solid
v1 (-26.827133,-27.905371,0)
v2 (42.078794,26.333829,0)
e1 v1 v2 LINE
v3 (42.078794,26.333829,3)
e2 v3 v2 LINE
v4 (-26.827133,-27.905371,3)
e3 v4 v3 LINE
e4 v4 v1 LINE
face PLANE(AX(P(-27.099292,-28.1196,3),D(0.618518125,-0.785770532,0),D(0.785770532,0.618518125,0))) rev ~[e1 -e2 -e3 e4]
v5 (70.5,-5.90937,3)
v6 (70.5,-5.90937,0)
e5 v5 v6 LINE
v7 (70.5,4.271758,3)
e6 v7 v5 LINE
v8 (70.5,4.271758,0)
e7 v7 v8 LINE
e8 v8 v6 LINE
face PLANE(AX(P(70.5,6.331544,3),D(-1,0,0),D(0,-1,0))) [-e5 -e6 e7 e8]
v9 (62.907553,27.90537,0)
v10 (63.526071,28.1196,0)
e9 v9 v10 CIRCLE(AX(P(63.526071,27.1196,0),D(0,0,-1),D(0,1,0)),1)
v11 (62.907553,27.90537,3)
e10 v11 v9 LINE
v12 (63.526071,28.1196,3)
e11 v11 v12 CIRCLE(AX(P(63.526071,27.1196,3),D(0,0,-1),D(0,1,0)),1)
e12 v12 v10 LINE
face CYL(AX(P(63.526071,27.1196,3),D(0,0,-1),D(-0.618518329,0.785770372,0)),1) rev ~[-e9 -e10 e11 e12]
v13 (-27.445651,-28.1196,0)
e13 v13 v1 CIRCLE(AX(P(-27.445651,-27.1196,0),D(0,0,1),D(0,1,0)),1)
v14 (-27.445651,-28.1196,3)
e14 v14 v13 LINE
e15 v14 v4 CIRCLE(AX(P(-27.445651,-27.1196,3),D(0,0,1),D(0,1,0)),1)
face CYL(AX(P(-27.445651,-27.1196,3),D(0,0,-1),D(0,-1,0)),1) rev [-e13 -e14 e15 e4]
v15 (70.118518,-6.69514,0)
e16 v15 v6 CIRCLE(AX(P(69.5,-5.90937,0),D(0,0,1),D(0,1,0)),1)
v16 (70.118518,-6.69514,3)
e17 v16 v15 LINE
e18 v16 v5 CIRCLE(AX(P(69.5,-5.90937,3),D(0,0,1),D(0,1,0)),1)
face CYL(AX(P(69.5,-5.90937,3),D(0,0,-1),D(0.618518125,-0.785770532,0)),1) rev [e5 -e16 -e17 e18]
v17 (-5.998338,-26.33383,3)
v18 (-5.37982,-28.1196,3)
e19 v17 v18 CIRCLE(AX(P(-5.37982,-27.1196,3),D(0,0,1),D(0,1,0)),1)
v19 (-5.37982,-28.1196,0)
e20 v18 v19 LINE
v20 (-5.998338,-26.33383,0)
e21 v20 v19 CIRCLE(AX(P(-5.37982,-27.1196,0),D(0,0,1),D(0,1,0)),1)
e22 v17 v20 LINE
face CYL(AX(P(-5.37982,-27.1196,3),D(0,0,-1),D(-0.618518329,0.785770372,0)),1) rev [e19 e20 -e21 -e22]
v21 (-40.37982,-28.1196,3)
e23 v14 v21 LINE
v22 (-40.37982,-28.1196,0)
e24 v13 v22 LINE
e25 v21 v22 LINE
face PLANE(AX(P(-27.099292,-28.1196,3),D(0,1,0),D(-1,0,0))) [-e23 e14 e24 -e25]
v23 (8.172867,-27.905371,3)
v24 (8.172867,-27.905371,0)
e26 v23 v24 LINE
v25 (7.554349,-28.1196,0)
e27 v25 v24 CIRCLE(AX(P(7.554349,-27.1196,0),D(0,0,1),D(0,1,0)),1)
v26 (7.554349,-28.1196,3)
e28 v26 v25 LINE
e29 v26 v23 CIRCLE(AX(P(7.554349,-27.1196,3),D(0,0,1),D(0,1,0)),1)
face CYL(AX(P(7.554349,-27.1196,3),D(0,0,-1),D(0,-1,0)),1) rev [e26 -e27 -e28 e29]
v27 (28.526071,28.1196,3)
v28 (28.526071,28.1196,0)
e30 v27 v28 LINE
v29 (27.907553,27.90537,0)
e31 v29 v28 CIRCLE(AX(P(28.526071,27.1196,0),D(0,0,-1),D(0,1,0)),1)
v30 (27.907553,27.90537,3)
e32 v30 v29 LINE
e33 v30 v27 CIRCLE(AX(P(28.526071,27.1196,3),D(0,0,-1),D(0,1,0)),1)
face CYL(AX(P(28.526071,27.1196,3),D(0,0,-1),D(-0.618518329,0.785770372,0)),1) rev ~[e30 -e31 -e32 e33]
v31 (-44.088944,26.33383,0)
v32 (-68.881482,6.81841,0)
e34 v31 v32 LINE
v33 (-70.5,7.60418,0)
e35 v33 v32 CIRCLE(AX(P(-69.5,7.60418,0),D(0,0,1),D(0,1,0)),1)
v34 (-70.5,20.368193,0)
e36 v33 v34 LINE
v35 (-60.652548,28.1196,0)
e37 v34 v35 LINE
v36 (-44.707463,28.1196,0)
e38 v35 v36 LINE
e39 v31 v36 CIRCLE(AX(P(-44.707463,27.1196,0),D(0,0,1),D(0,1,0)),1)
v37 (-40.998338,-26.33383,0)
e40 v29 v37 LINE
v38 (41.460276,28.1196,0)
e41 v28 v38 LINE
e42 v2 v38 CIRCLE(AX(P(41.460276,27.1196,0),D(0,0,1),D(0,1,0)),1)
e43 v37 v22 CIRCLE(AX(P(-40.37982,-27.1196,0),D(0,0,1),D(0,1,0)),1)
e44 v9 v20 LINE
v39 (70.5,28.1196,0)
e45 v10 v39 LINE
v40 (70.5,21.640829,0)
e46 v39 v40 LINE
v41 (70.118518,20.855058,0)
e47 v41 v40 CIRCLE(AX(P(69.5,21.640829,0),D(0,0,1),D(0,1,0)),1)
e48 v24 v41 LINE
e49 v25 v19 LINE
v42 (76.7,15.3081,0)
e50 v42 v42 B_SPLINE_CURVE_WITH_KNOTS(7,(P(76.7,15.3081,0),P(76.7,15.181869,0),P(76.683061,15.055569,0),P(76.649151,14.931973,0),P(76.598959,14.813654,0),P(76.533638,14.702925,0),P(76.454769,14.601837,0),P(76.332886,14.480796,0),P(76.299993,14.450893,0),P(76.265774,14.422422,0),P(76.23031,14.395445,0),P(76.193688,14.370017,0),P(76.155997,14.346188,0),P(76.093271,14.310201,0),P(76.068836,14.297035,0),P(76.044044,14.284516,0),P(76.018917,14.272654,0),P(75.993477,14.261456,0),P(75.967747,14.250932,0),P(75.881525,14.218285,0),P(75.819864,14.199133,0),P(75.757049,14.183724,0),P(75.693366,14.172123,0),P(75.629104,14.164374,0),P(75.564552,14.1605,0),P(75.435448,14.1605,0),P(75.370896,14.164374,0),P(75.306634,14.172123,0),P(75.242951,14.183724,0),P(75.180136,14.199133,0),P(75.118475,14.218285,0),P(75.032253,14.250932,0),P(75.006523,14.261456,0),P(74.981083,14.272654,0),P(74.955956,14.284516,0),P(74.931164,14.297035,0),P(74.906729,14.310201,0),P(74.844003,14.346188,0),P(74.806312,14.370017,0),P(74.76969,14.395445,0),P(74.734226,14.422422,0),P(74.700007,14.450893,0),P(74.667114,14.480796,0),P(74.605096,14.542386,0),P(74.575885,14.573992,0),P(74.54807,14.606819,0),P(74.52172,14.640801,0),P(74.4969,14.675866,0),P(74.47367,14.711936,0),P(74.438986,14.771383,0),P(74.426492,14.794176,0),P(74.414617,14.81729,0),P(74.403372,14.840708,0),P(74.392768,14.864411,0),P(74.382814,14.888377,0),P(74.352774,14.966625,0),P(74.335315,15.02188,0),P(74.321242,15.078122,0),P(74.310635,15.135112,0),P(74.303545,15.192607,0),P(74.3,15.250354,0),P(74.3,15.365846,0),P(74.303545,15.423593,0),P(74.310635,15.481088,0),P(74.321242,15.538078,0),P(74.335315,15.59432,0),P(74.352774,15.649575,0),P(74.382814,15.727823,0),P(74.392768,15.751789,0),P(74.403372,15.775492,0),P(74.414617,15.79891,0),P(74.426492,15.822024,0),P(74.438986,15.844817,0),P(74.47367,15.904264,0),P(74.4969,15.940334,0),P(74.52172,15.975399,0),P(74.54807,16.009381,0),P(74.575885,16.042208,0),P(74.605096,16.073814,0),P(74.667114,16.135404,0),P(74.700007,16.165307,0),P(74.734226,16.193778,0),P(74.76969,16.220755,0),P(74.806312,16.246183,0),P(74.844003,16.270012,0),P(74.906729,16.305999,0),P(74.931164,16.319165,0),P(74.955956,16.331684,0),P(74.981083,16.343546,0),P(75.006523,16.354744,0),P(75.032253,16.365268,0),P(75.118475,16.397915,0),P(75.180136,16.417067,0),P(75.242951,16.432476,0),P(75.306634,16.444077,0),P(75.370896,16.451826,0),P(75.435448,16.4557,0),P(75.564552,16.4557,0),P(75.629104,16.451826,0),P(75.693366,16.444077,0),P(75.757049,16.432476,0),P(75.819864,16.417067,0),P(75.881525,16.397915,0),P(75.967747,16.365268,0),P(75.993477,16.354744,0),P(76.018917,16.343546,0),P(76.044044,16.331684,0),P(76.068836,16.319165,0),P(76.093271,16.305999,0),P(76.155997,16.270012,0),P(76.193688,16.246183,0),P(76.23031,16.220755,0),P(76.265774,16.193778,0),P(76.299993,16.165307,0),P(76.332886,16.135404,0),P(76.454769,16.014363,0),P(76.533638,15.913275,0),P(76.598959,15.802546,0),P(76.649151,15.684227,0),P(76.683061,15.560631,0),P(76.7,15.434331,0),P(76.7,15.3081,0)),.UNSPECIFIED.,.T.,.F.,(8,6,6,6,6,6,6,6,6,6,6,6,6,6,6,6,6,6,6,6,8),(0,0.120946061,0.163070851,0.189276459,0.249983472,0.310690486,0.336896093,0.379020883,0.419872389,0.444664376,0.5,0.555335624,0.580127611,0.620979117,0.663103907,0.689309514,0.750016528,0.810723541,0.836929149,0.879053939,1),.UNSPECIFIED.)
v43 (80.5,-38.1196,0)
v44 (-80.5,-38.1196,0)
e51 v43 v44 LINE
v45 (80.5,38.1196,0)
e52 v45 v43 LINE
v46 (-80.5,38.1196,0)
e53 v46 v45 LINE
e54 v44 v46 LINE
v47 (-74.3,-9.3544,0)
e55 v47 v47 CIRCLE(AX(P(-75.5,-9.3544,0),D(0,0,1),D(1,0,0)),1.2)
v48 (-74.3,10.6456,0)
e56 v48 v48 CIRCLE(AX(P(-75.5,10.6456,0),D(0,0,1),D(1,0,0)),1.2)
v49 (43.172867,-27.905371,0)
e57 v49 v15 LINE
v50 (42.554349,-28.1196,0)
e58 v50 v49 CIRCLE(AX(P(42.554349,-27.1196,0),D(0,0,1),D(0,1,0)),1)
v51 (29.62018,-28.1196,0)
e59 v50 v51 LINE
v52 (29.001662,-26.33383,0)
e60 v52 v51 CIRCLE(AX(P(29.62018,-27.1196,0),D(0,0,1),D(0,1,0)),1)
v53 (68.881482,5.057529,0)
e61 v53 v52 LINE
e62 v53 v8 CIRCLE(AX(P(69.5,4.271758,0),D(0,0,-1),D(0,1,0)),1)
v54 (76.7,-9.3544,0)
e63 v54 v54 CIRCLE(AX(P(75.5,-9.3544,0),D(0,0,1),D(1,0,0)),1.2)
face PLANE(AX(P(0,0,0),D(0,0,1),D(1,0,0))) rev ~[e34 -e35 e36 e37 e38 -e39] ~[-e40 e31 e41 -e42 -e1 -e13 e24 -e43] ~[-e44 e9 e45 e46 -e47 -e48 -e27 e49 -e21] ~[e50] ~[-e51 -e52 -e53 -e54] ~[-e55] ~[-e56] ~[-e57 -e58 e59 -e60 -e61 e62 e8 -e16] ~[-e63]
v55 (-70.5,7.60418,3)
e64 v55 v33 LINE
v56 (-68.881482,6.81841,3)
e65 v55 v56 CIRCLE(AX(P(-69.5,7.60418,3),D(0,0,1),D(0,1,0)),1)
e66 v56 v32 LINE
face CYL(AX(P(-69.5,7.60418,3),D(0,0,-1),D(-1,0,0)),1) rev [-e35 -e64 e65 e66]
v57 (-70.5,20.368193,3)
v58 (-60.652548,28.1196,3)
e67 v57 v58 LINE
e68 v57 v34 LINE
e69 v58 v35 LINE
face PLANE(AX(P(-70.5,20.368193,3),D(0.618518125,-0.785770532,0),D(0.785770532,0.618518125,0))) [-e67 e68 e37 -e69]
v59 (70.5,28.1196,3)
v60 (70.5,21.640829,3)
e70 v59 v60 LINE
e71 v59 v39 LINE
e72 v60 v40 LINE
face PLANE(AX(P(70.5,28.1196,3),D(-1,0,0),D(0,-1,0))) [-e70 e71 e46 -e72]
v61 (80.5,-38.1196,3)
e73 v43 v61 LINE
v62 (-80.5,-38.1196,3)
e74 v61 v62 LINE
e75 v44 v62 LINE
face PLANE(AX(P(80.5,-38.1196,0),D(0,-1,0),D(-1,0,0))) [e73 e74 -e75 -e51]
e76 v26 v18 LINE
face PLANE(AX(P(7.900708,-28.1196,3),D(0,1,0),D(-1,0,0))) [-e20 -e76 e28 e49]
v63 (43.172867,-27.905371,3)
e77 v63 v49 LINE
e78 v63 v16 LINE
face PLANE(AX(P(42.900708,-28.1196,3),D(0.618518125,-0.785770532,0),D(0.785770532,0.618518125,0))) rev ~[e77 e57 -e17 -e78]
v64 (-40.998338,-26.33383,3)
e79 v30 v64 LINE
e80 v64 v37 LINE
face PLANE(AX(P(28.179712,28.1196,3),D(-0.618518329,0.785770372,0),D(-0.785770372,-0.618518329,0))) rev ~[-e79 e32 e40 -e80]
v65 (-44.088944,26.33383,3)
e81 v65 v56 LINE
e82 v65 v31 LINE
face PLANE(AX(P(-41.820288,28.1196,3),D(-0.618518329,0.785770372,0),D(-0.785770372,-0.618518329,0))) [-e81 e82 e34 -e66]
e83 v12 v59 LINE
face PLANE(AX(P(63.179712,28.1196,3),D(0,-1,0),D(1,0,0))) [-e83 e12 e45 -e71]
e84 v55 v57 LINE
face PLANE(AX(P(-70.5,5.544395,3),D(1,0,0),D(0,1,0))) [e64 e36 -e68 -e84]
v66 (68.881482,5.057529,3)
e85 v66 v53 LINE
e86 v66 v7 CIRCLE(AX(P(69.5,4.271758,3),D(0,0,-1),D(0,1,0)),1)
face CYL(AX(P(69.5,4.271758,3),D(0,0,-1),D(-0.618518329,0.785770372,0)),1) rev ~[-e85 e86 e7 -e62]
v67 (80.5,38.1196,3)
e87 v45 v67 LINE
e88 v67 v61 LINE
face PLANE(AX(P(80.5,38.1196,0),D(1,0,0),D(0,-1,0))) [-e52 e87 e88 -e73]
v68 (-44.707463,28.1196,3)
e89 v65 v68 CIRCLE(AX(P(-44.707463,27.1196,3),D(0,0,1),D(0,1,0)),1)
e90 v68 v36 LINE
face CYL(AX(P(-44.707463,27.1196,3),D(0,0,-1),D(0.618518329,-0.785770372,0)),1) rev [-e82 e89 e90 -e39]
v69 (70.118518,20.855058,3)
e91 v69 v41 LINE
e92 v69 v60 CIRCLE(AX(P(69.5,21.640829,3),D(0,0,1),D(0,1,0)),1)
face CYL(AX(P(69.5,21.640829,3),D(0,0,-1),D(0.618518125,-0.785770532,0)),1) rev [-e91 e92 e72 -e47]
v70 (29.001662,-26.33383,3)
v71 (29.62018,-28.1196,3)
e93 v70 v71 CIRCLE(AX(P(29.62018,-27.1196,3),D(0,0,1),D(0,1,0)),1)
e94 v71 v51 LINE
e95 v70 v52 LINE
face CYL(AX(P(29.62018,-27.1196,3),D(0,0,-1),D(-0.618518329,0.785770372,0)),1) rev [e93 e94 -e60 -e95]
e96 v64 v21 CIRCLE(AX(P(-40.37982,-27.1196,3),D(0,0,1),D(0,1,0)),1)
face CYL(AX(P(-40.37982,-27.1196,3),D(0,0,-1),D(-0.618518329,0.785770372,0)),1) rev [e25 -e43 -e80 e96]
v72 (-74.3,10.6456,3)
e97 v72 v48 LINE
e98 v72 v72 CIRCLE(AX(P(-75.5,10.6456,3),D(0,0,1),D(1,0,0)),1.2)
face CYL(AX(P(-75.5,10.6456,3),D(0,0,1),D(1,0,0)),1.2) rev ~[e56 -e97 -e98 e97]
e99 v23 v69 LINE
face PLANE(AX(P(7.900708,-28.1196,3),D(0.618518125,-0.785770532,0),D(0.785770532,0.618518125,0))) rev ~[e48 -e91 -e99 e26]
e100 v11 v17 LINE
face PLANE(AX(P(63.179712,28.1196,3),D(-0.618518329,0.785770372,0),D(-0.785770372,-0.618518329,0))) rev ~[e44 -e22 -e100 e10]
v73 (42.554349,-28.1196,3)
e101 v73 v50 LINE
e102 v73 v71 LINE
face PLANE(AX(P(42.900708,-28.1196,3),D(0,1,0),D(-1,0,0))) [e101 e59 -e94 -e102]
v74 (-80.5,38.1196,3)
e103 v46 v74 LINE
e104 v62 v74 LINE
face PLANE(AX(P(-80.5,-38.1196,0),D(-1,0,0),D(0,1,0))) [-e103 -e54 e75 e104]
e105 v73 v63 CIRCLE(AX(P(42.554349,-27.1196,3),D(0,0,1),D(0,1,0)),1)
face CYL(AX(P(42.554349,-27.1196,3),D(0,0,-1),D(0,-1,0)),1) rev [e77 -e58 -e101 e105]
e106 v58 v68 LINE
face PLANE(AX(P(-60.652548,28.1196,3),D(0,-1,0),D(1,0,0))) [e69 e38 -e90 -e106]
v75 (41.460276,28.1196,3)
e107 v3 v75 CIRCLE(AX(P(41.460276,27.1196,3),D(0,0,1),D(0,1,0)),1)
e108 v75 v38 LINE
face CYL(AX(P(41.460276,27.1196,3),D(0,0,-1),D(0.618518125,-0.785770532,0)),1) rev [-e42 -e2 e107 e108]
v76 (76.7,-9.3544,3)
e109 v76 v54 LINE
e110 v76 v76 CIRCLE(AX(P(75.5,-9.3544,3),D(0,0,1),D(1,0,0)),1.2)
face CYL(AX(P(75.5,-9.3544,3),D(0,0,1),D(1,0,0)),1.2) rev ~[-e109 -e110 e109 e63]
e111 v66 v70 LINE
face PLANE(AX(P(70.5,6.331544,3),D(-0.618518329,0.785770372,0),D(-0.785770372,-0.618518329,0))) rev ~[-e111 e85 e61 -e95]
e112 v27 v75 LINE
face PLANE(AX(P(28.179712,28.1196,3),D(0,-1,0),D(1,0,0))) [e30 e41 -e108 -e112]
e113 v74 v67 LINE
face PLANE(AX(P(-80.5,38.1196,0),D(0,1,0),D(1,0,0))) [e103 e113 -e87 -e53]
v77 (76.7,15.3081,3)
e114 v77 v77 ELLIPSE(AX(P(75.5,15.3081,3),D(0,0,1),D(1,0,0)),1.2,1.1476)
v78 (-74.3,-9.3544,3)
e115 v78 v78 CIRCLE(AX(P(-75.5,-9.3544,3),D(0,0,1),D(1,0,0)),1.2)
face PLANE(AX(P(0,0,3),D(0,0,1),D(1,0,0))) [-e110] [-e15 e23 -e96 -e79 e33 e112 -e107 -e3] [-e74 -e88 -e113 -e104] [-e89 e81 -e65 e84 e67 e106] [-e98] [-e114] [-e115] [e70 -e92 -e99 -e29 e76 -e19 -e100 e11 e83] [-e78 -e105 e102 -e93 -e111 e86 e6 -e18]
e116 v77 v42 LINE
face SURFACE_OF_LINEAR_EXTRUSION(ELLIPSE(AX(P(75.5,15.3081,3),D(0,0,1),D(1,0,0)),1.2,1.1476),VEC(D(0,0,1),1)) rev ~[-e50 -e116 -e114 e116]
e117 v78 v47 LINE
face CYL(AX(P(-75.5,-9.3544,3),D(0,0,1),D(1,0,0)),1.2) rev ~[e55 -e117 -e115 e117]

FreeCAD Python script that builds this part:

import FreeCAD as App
import Part
import Sketcher
from FreeCAD import Vector


def edges_at(feature, points):
    """Names of the edges that pass closest to the given points."""
    edges = feature.Shape.Edges
    near = lambda p: min(range(len(edges)), key=lambda i: edges[i].distToShape(Part.Vertex(*p))[0])
    return sorted({f"Edge{near(p) + 1}" for p in points})

doc = App.newDocument("Part")
body = doc.addObject("PartDesign::Body", "Body")

sketch1 = body.newObject("Sketcher::SketchObject", "Sketch")
sketch1.AttachmentSupport = (doc.getObject("XY_Plane"), [""])
sketch1.MapMode = "FlatFace"
sketch1.addGeometry([
    Part.LineSegment(Vector(-80.5, -38.1196, 0), Vector(80.5, -38.1196, 0)),
    Part.LineSegment(Vector(80.5, -38.1196, 0), Vector(80.5, 38.1196, 0)),
    Part.LineSegment(Vector(80.5, 38.1196, 0), Vector(-80.5, 38.1196, 0)),
    Part.LineSegment(Vector(-80.5, 38.1196, 0), Vector(-80.5, -38.1196, 0)),
], False)
sketch1.addConstraint([
    Sketcher.Constraint("Coincident", 0, 2, 1, 1),
    Sketcher.Constraint("Coincident", 1, 2, 2, 1),
    Sketcher.Constraint("Coincident", 2, 2, 3, 1),
    Sketcher.Constraint("Coincident", 3, 2, 0, 1),
    Sketcher.Constraint("Horizontal", 0),
    Sketcher.Constraint("Vertical", 1),
    Sketcher.Constraint("Horizontal", 2),
    Sketcher.Constraint("Vertical", 3),
    Sketcher.Constraint("Symmetric", 0, 2, 2, 2, -1, 1),
    Sketcher.Constraint("DistanceX", 0, 1, 0, 2, 161.0),
    Sketcher.Constraint("DistanceY", 1, 1, 1, 2, 76.2392),
])
pad1 = body.newObject("PartDesign::Pad", "Pad")
pad1.Profile = sketch1
pad1.Length = 3

sketch2 = body.newObject("Sketcher::SketchObject", "Sketch001")
sketch2.AttachmentSupport = (doc.getObject("XY_Plane"), [""])
sketch2.MapMode = "FlatFace"
sketch2.AttachmentOffset = App.Placement(Vector(0, 0, 3), App.Rotation())
sketch2.addGeometry([
    Part.LineSegment(Vector(-41.820288, 28.1196, 0), Vector(-60.652548, 28.1196, 0)),
    Part.LineSegment(Vector(-60.652548, 28.1196, 0), Vector(-70.5, 20.368193, 0)),
    Part.LineSegment(Vector(-70.5, 20.368193, 0), Vector(-70.5, 5.544395, 0)),
    Part.LineSegment(Vector(-70.5, 5.544395, 0), Vector(-41.820288, 28.1196, 0)),
    Part.LineSegment(Vector(44.347452, 28.1196, 0), Vector(28.179712, 28.1196, 0)),
    Part.LineSegment(Vector(28.179712, 28.1196, 0), Vector(-43.266994, -28.1196, 0)),
    Part.LineSegment(Vector(-43.266994, -28.1196, 0), Vector(-27.099292, -28.1196, 0)),
    Part.LineSegment(Vector(-27.099292, -28.1196, 0), Vector(44.347452, 28.1196, 0)),
    Part.LineSegment(Vector(70.5, 28.1196, 0), Vector(63.179712, 28.1196, 0)),
    Part.LineSegment(Vector(63.179712, 28.1196, 0), Vector(-8.266994, -28.1196, 0)),
    Part.LineSegment(Vector(-8.266994, -28.1196, 0), Vector(7.900708, -28.1196, 0)),
    Part.LineSegment(Vector(7.900708, -28.1196, 0), Vector(70.5, 21.155341, 0)),
    Part.LineSegment(Vector(70.5, 21.155341, 0), Vector(70.5, 28.1196, 0)),
    Part.LineSegment(Vector(70.5, 6.331544, 0), Vector(26.733006, -28.1196, 0)),
    Part.LineSegment(Vector(26.733006, -28.1196, 0), Vector(42.900708, -28.1196, 0)),
    Part.LineSegment(Vector(42.900708, -28.1196, 0), Vector(70.5, -6.394858, 0)),
    Part.LineSegment(Vector(70.5, -6.394858, 0), Vector(70.5, 6.331544, 0)),
], False)
sketch2.addConstraint([
    Sketcher.Constraint("Coincident", 0, 2, 1, 1),
    Sketcher.Constraint("Coincident", 1, 2, 2, 1),
    Sketcher.Constraint("Coincident", 2, 2, 3, 1),
    Sketcher.Constraint("Coincident", 3, 2, 0, 1),
    Sketcher.Constraint("Coincident", 4, 2, 5, 1),
    Sketcher.Constraint("Coincident", 5, 2, 6, 1),
    Sketcher.Constraint("Coincident", 6, 2, 7, 1),
    Sketcher.Constraint("Coincident", 7, 2, 4, 1),
    Sketcher.Constraint("Coincident", 8, 2, 9, 1),
    Sketcher.Constraint("Coincident", 9, 2, 10, 1),
    Sketcher.Constraint("Coincident", 10, 2, 11, 1),
    Sketcher.Constraint("Coincident", 11, 2, 12, 1),
    Sketcher.Constraint("Coincident", 12, 2, 8, 1),
    Sketcher.Constraint("Coincident", 13, 2, 14, 1),
    Sketcher.Constraint("Coincident", 14, 2, 15, 1),
    Sketcher.Constraint("Coincident", 15, 2, 16, 1),
    Sketcher.Constraint("Coincident", 16, 2, 13, 1),
    Sketcher.Constraint("Horizontal", 0),
    Sketcher.Constraint("Vertical", 2),
    Sketcher.Constraint("Horizontal", 4),
    Sketcher.Constraint("Horizontal", 6),
    Sketcher.Constraint("Horizontal", 8),
    Sketcher.Constraint("Horizontal", 10),
    Sketcher.Constraint("Vertical", 12),
    Sketcher.Constraint("Horizontal", 14),
    Sketcher.Constraint("Vertical", 16),
    Sketcher.Constraint("Parallel", 1, 3),
    Sketcher.Constraint("Parallel", 3, 5),
    Sketcher.Constraint("Parallel", 5, 7),
    Sketcher.Constraint("Parallel", 7, 9),
    Sketcher.Constraint("Parallel", 9, 11),
    Sketcher.Constraint("Parallel", 11, 13),
    Sketcher.Constraint("Parallel", 13, 15),
    Sketcher.Constraint("Horizontal", 3, 2, 4, 2),
    Sketcher.Constraint("Horizontal", 7, 2, 8, 2),
    Sketcher.Constraint("Horizontal", 6, 2, 9, 2),
    Sketcher.Constraint("Horizontal", 10, 2, 13, 2),
    Sketcher.Constraint("Vertical", 12, 2, 15, 2),
    Sketcher.Constraint("Equal", 6, 10),
    Sketcher.Constraint("Equal", 10, 14),
    Sketcher.Constraint("DistanceX", 4, 2, 8, 2, 35.0),
    Sketcher.Constraint("DistanceX", 9, 2, 13, 2, 35.0),
    Sketcher.Constraint("DistanceX", 3, 2, 4, 2, 70.0),
    Sketcher.Constraint("DistanceX", 0, 2, 7, 2, 105.0),
    Sketcher.Constraint("DistanceX", 1, 2, -1, 1, 70.5),
    Sketcher.Constraint("DistanceX", -1, 1, 11, 2, 70.5),
    Sketcher.Constraint("DistanceX", 0, 2, 0, 1, 18.8323),
    Sketcher.Constraint("DistanceX", 8, 2, 8, 1, 7.3203),
    Sketcher.Constraint("DistanceY", 2, 2, 2, 1, 14.8238),
    Sketcher.Constraint("DistanceX", 5, 2, -1, 1, 43.267),
    Sketcher.Constraint("DistanceY", -1, 1, 0, 2, 28.1196),
])
pocket1 = body.newObject("PartDesign::Pocket", "Pocket")
pocket1.Profile = sketch2
pocket1.Length = 10
doc.recompute()

fillet = body.newObject("PartDesign::Fillet", "Fillet")
fillet.Base = (pocket1, edges_at(pocket1, [
    (28.18, 28.12, 1.5),
    (44.347, 28.12, 1.5),
    (63.18, 28.12, 1.5),
    (70.5, 21.155, 1.5),
    (70.5, 6.332, 1.5),
    (26.733, -28.12, 1.5),
    (42.901, -28.12, 1.5),
    (70.5, -6.395, 1.5),
    (-8.267, -28.12, 1.5),
    (7.901, -28.12, 1.5),
    (-43.267, -28.12, 1.5),
    (-27.099, -28.12, 1.5),
    (-70.5, 5.544, 1.5),
    (-41.82, 28.12, 1.5),
]))
fillet.Radius = 1

sketch3 = body.newObject("Sketcher::SketchObject", "Sketch002")
sketch3.AttachmentSupport = (doc.getObject("XY_Plane"), [""])
sketch3.MapMode = "FlatFace"
sketch3.AttachmentOffset = App.Placement(Vector(0, 0, 3), App.Rotation())
sketch3.addGeometry([
    Part.Ellipse(Vector(76.7, 15.3081, 0), Vector(75.5, 16.4557, 0), Vector(75.5, 15.3081, 0)),
    Part.Circle(Vector(75.5, -9.3544, 0), Vector(0, 0, 1), 1.2),
    Part.Circle(Vector(-75.5, 10.6456, 0), Vector(0, 0, 1), 1.2),
    Part.Circle(Vector(-75.5, -9.3544, 0), Vector(0, 0, 1), 1.2),
], False)
sketch3.addConstraint([
    Sketcher.Constraint("Block", 0),
    Sketcher.Constraint("Equal", 1, 2),
    Sketcher.Constraint("Equal", 2, 3),
    Sketcher.Constraint("Symmetric", 1, 3, 3, 3, -2),
    Sketcher.Constraint("Vertical", 2, 3, 3, 3),
    Sketcher.Constraint("Diameter", 1, 2.4),
    Sketcher.Constraint("DistanceX", 2, 3, 1, 3, 151.0),
    Sketcher.Constraint("DistanceY", 1, 3, 2, 3, 20.0),
    Sketcher.Constraint("DistanceY", 1, 3, -1, 1, 9.3544),
])
pocket2 = body.newObject("PartDesign::Pocket", "Pocket001")
pocket2.Profile = sketch3
pocket2.Length = 10

doc.recompute()
